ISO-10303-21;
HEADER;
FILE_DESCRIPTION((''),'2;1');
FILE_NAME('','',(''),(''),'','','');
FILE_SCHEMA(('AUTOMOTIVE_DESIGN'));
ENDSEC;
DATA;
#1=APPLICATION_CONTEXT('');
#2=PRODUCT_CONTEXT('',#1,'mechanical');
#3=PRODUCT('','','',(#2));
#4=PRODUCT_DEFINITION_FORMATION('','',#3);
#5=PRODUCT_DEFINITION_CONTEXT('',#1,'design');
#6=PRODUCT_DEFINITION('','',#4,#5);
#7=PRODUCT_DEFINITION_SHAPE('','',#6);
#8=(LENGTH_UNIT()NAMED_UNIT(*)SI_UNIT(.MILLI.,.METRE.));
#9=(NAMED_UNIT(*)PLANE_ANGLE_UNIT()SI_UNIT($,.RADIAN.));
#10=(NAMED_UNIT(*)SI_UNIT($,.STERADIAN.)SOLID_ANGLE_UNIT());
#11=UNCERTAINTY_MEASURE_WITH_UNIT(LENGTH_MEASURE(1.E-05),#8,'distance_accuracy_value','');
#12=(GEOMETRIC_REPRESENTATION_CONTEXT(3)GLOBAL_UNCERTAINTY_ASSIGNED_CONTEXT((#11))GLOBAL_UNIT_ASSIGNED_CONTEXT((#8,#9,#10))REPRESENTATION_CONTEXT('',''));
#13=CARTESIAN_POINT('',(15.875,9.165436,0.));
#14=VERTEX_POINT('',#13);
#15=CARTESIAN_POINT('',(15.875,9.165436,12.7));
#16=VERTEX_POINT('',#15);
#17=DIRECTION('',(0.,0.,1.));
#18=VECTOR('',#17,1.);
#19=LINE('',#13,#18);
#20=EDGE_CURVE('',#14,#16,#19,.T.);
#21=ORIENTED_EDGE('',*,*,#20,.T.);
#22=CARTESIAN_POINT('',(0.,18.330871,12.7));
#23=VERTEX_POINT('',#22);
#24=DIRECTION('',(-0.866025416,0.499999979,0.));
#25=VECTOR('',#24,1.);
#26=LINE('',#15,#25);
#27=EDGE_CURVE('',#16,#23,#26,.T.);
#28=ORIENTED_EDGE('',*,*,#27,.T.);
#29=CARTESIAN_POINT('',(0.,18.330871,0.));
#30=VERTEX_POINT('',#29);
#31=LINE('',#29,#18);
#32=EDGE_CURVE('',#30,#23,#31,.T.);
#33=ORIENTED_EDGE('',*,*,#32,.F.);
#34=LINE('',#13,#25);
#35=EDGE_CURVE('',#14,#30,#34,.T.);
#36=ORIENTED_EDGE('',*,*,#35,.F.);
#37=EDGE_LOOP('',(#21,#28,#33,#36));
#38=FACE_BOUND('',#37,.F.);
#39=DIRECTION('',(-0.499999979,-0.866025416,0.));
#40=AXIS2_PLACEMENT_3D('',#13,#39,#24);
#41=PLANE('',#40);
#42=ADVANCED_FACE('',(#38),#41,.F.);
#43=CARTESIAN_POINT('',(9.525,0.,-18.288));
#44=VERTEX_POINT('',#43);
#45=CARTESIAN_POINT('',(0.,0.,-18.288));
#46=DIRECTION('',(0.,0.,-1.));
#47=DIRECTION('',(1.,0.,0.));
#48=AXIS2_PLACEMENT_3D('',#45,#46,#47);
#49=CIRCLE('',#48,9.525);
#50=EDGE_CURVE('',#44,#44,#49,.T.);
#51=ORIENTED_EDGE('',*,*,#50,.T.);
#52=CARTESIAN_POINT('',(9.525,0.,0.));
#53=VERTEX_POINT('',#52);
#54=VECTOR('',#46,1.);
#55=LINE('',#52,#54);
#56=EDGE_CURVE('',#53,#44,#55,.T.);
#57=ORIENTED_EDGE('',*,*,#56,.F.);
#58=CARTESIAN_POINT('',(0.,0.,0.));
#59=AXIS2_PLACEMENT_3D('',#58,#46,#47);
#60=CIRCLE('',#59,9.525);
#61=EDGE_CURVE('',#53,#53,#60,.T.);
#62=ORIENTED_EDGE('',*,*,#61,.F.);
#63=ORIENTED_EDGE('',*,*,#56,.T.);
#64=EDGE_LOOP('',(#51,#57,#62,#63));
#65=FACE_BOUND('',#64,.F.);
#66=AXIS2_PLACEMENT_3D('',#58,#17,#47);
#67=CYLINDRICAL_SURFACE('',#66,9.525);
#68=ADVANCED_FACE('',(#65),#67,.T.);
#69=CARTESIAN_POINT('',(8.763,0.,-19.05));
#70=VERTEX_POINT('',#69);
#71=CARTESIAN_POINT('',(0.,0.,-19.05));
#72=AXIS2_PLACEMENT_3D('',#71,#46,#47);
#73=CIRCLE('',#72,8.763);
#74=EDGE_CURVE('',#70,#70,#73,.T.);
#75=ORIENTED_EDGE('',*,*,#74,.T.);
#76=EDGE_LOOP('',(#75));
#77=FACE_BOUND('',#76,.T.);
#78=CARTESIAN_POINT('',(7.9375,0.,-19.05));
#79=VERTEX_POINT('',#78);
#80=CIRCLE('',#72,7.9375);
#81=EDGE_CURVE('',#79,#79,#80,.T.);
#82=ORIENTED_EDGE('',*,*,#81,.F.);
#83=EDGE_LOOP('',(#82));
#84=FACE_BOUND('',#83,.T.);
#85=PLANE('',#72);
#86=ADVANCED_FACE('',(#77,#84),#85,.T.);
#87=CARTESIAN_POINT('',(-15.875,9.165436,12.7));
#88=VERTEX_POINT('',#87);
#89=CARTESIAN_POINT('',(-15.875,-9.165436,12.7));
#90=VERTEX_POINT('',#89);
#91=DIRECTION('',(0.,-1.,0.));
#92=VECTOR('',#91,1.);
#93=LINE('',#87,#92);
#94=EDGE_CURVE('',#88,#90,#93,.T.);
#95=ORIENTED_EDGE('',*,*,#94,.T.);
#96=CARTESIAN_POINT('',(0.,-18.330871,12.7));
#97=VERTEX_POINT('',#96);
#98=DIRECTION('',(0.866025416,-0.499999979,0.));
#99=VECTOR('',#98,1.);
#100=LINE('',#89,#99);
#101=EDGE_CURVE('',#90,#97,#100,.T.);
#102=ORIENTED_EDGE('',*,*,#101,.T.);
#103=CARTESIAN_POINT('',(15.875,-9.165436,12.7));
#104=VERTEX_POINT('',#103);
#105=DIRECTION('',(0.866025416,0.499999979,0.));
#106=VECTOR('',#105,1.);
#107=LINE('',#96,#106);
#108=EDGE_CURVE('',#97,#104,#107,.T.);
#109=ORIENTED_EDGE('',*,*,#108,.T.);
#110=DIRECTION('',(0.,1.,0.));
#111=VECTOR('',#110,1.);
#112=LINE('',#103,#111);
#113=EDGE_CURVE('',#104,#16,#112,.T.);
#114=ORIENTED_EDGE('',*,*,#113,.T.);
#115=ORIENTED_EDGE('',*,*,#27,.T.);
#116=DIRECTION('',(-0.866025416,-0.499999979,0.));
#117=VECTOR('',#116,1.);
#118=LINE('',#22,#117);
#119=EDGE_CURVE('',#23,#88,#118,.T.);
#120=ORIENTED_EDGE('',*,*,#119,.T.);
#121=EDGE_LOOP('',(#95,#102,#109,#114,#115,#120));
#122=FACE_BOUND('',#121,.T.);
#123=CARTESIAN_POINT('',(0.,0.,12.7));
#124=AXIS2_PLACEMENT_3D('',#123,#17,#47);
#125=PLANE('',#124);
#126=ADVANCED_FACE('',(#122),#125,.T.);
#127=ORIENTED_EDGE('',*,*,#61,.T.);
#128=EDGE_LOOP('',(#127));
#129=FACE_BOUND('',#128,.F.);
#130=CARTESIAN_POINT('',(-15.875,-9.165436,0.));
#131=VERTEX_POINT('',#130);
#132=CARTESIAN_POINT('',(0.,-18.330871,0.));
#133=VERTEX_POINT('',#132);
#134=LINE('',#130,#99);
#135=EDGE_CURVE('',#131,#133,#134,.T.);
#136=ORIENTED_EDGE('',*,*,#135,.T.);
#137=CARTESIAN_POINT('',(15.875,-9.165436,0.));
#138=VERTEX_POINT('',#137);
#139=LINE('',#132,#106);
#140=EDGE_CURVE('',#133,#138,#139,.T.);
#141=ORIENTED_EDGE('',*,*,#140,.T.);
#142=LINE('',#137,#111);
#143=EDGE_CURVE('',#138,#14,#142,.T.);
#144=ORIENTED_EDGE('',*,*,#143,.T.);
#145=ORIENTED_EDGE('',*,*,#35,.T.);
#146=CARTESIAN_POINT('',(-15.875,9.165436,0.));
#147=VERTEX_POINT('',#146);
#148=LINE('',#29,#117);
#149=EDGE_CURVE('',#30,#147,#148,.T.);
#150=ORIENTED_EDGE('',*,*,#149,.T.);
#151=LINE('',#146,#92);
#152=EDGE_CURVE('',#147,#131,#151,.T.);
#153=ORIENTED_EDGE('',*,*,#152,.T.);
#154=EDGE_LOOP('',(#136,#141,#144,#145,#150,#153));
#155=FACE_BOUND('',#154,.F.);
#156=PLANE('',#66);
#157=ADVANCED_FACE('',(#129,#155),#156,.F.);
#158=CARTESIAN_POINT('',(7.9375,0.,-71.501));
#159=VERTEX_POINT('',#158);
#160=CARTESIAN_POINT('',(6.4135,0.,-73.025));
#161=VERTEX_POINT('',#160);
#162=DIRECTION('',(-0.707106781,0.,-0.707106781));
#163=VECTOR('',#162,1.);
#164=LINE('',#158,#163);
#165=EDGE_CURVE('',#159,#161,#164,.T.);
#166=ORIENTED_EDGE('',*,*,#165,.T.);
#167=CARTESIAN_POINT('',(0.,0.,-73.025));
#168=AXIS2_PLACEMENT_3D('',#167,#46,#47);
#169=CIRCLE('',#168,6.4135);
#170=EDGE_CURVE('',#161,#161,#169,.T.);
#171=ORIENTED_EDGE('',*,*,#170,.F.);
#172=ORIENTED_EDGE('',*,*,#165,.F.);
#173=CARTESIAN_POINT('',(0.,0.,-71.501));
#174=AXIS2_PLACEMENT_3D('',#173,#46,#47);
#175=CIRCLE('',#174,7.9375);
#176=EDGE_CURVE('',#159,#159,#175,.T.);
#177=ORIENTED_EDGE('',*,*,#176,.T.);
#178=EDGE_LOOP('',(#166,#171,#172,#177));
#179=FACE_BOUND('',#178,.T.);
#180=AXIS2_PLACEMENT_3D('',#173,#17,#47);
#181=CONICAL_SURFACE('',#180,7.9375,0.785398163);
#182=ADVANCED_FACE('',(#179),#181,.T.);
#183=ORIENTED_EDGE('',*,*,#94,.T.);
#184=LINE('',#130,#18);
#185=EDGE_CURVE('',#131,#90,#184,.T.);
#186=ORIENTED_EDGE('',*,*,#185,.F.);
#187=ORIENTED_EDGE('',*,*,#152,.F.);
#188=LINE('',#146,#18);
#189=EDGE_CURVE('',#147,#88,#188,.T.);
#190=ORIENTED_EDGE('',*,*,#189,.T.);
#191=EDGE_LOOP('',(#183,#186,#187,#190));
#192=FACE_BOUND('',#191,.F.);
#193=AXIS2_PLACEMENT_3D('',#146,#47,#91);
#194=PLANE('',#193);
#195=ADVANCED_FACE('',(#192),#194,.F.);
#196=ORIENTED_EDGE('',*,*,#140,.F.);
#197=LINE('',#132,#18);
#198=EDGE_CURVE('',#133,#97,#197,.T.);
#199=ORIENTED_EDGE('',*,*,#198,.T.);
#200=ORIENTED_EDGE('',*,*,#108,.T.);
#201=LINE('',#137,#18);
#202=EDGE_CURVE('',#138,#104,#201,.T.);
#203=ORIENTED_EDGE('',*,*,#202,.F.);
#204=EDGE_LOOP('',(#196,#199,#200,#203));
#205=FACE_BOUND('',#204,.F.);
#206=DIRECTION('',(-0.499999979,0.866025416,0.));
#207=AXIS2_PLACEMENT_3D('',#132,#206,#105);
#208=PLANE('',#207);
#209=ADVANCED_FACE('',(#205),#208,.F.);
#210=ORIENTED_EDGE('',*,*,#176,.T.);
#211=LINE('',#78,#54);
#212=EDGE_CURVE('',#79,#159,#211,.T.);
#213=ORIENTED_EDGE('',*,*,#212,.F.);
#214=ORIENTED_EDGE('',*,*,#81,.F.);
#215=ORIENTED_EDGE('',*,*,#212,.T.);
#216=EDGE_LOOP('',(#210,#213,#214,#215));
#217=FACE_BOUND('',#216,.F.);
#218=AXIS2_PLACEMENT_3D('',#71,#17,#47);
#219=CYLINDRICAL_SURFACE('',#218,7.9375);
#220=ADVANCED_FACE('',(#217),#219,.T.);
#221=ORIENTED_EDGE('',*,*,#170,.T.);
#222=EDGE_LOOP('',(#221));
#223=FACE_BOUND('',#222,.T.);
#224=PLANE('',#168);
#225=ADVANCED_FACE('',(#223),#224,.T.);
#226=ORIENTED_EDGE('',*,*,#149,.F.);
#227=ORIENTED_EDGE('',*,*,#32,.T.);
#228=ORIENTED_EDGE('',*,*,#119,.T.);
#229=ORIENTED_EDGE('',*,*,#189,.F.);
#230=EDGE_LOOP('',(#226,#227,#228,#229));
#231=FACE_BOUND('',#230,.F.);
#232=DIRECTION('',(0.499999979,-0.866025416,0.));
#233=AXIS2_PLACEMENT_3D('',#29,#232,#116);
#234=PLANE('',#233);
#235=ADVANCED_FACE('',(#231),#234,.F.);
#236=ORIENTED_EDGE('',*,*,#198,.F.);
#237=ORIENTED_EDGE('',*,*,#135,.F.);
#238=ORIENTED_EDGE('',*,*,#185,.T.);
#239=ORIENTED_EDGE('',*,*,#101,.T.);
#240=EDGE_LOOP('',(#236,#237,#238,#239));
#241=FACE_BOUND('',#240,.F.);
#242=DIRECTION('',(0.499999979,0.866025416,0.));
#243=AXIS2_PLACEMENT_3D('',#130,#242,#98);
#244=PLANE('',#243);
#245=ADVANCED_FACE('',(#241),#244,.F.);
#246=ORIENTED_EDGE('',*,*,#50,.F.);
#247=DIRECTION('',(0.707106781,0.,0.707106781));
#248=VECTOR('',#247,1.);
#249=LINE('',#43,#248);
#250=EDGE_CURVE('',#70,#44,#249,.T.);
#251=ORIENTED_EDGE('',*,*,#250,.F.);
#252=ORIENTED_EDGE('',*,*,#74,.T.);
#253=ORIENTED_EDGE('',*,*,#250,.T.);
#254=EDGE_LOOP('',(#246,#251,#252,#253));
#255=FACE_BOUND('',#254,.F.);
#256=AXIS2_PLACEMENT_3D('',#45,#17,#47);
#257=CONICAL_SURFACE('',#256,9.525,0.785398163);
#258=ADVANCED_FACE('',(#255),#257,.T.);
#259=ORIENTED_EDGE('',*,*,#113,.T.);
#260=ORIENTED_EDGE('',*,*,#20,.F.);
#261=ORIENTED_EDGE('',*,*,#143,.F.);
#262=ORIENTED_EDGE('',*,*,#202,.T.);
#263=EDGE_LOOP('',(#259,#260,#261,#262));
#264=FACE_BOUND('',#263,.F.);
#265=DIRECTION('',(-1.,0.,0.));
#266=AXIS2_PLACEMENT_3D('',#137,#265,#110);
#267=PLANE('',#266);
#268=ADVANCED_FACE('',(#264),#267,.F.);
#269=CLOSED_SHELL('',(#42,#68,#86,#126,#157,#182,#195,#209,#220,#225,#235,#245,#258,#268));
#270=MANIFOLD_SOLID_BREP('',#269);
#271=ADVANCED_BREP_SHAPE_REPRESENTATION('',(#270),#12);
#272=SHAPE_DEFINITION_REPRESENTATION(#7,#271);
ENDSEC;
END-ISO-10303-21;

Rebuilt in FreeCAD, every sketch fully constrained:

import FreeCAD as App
import Part
import Sketcher

V = App.Vector
Q = App.Units.Quantity


def edges_at(feature, points):
    """Names of the edges that pass closest to the given points."""
    edges = feature.Shape.Edges
    near = lambda p: min(range(len(edges)), key=lambda i: edges[i].distToShape(Part.Vertex(*p))[0])
    return sorted({f"Edge{near(p) + 1}" for p in points})

doc = App.newDocument("Part")
params = doc.addObject("Spreadsheet::Sheet", "Params")
for row, (alias, value) in enumerate([
    ("pad1_length", "0.5 in"),
    ("sketch2_diameter", "0.75 in"),
    ("pad2_length", "0.75 in"),
    ("sketch3_diameter", "0.625 in"),
    ("pad3_length", "2.125 in"),
    ("chamfer_size", "0.06 in"),
    ("chamfer2_size", "0.03 in"),
], start=1):
    params.set(f"A{row}", alias)
    params.set(f"B{row}", "=" + value)
    params.setAlias(f"B{row}", alias)

body = doc.addObject("PartDesign::Body", "Body")

sketch1 = body.newObject("Sketcher::SketchObject", "Sketch")
sketch1.AttachmentSupport = (doc.getObject("XY_Plane"), [""])
sketch1.MapMode = "FlatFace"
sketch1.addGeometry(Part.LineSegment(V(-15.875, 9.165436, 0), V(-15.875, -9.165436, 0)), False)
sketch1.addGeometry(Part.LineSegment(V(-15.875, -9.165436, 0), V(0, -18.330871, 0)), False)
sketch1.addGeometry(Part.LineSegment(V(0, -18.330871, 0), V(15.875, -9.165436, 0)), False)
sketch1.addGeometry(Part.LineSegment(V(15.875, -9.165436, 0), V(15.875, 9.165436, 0)), False)
sketch1.addGeometry(Part.LineSegment(V(15.875, 9.165436, 0), V(0, 18.330871, 0)), False)
sketch1.addGeometry(Part.LineSegment(V(0, 18.330871, 0), V(-15.875, 9.165436, 0)), False)
sketch1.addConstraint(Sketcher.Constraint("Coincident", 0, 2, 1, 1))
sketch1.addConstraint(Sketcher.Constraint("Coincident", 1, 2, 2, 1))
sketch1.addConstraint(Sketcher.Constraint("Coincident", 2, 2, 3, 1))
sketch1.addConstraint(Sketcher.Constraint("Coincident", 3, 2, 4, 1))
sketch1.addConstraint(Sketcher.Constraint("Coincident", 4, 2, 5, 1))
sketch1.addConstraint(Sketcher.Constraint("Coincident", 5, 2, 0, 1))
sketch1.addConstraint(Sketcher.Constraint("Vertical", 0))
sketch1.addConstraint(Sketcher.Constraint("Vertical", 3))
sketch1.addConstraint(Sketcher.Constraint("Symmetric", 0, 2, 3, 2, -1, 1))
sketch1.addConstraint(Sketcher.Constraint("Symmetric", 1, 2, 4, 2, -1, 1))
sketch1.addConstraint(Sketcher.Constraint("PointOnObject", 1, 2, -2))
sketch1.addConstraint(Sketcher.Constraint("Parallel", 2, 5))
sketch1.addConstraint(Sketcher.Constraint("Horizontal", 0, 2, 2, 2))
sketch1.addConstraint(Sketcher.Constraint("Angle", 1, Q("-29.999999 deg")))
sketch1.addConstraint(Sketcher.Constraint("DistanceX", 0, 2, 2, 2, Q("1.25 in")))
sketch1.addConstraint(Sketcher.Constraint("DistanceY", 0, 2, 0, 1, Q("18.330872 mm")))
pad1 = body.newObject("PartDesign::Pad", "Pad")
pad1.Profile = sketch1
pad1.setExpression("Length", "Params.pad1_length")

sketch2 = body.newObject("Sketcher::SketchObject", "Sketch001")
sketch2.AttachmentSupport = (doc.getObject("XY_Plane"), [""])
sketch2.MapMode = "FlatFace"
sketch2.addGeometry(Part.Circle(V(0, 0, 0), V(0, 0, 1), 9.525), False)
sketch2.addConstraint(Sketcher.Constraint("Coincident", 0, 3, -1, 1))
sketch2.addConstraint(Sketcher.Constraint("Diameter", 0, Q("0.75 in")))
sketch2.setExpression("Constraints[1]", "Params.sketch2_diameter")
pad2 = body.newObject("PartDesign::Pad", "Pad001")
pad2.Profile = sketch2
pad2.setExpression("Length", "Params.pad2_length")
pad2.Reversed = True

sketch3 = body.newObject("Sketcher::SketchObject", "Sketch002")
sketch3.AttachmentSupport = (doc.getObject("XY_Plane"), [""])
sketch3.MapMode = "FlatFace"
sketch3.AttachmentOffset = App.Placement(V(0, 0, -0.75 * 25.4), App.Rotation())
sketch3.addGeometry(Part.Circle(V(0, 0, 0), V(0, 0, 1), 7.9375), False)
sketch3.addConstraint(Sketcher.Constraint("Coincident", 0, 3, -1, 1))
sketch3.addConstraint(Sketcher.Constraint("Diameter", 0, Q("0.625 in")))
sketch3.setExpression("Constraints[1]", "Params.sketch3_diameter")
pad3 = body.newObject("PartDesign::Pad", "Pad002")
pad3.Profile = sketch3
pad3.setExpression("Length", "Params.pad3_length")
pad3.Reversed = True
doc.recompute()

chamfer = body.newObject("PartDesign::Chamfer", "Chamfer")
chamfer.Base = (pad3, edges_at(pad3, [(-7.938, 0, -73.025)]))
chamfer.setExpression("Size", "Params.chamfer_size")
doc.recompute()

chamfer2 = body.newObject("PartDesign::Chamfer", "Chamfer001")
chamfer2.Base = (chamfer, edges_at(chamfer, [(-9.525, 0, -19.05)]))
chamfer2.setExpression("Size", "Params.chamfer2_size")

doc.recompute()
